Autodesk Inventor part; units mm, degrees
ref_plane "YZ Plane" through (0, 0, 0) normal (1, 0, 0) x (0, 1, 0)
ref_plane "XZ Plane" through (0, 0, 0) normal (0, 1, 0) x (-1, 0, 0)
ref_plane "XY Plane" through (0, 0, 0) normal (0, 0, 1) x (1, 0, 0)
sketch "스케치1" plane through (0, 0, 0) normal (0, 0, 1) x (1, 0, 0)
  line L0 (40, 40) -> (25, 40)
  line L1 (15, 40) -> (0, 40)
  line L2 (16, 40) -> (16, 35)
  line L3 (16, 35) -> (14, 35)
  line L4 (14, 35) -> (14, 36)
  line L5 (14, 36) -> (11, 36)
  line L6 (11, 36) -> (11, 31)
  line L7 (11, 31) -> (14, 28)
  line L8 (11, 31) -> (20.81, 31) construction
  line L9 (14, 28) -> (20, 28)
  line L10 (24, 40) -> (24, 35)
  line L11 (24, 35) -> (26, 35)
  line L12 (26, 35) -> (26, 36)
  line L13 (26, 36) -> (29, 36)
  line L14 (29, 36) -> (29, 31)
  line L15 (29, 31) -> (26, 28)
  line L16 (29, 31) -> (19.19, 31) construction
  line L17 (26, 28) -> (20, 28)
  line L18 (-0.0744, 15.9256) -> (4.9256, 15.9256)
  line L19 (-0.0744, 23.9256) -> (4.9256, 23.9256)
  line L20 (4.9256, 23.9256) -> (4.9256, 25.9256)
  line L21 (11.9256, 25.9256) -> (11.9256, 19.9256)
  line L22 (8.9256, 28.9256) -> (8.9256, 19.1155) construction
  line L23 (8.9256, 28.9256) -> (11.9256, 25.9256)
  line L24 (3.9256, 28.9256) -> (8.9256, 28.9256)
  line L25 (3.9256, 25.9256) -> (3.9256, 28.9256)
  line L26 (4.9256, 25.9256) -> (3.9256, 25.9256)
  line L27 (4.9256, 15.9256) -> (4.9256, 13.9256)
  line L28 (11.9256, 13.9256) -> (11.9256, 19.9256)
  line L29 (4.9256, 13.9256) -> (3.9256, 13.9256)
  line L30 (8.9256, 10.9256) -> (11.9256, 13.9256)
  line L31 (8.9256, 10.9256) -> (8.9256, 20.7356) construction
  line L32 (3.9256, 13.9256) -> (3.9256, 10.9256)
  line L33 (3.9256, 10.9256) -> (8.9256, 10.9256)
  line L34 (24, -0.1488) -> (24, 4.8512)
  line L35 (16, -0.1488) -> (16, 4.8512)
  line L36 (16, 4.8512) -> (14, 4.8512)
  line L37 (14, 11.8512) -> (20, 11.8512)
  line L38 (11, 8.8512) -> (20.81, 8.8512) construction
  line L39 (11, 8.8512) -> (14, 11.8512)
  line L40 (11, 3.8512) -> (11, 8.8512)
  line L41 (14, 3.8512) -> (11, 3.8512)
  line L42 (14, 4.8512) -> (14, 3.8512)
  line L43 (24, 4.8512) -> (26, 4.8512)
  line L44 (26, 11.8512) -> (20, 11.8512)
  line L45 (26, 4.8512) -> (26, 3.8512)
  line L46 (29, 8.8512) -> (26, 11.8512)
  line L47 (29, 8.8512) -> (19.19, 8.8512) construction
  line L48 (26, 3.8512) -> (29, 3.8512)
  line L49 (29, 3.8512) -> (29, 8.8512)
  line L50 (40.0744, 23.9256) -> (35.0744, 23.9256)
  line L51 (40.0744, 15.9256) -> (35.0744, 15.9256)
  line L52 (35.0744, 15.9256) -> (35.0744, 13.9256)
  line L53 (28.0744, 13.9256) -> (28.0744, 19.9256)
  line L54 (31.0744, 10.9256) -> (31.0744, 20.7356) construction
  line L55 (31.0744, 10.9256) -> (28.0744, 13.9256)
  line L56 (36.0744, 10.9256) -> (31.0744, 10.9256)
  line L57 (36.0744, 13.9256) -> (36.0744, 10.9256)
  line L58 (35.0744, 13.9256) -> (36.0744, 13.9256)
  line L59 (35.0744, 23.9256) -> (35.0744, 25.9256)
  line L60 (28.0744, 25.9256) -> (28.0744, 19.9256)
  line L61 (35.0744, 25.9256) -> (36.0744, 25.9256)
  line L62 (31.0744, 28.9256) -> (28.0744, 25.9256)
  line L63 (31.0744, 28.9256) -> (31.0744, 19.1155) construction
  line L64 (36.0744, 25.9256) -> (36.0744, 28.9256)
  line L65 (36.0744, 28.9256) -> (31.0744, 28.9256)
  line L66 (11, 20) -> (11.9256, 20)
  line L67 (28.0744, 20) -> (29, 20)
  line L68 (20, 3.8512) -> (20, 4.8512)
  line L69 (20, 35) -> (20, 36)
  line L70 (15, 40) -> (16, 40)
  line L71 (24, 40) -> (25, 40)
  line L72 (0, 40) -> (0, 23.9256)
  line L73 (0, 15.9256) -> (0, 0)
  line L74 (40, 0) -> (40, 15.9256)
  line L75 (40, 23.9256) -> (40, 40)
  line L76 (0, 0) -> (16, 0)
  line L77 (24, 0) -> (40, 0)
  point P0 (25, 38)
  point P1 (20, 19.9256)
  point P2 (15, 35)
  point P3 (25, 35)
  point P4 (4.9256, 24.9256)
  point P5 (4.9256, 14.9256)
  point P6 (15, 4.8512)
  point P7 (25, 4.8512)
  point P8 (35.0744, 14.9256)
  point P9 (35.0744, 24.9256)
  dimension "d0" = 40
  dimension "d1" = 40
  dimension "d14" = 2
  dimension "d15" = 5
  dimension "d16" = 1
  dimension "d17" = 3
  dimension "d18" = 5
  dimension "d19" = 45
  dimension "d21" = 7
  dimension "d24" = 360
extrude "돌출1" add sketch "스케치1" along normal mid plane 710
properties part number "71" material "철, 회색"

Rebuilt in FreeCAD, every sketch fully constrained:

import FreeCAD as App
import Part
import Sketcher
Q = App.Units.Quantity

doc = App.newDocument("Part")
body = doc.addObject("PartDesign::Body", "Body")

sketch1 = body.newObject("Sketcher::SketchObject", "Sketch")
sketch1.AttachmentSupport = (doc.getObject("XY_Plane"), [""])
sketch1.MapMode = "FlatFace"
sketch1.addGeometry(Part.LineSegment(App.Vector(40, 23.9, 0), App.Vector(40, 40, 0)), False)
sketch1.addGeometry(Part.LineSegment(App.Vector(40, 40, 0), App.Vector(24, 40, 0)), False)
sketch1.addGeometry(Part.LineSegment(App.Vector(24, 40, 0), App.Vector(24, 35, 0)), False)
sketch1.addGeometry(Part.LineSegment(App.Vector(24, 35, 0), App.Vector(26, 35, 0)), False)
sketch1.addGeometry(Part.LineSegment(App.Vector(26, 35, 0), App.Vector(26, 36, 0)), False)
sketch1.addGeometry(Part.LineSegment(App.Vector(26, 36, 0), App.Vector(29, 36, 0)), False)
sketch1.addGeometry(Part.LineSegment(App.Vector(29, 36, 0), App.Vector(29, 31, 0)), False)
sketch1.addGeometry(Part.LineSegment(App.Vector(29, 31, 0), App.Vector(26, 28, 0)), False)
sketch1.addGeometry(Part.LineSegment(App.Vector(26, 28, 0), App.Vector(14, 28, 0)), False)
sketch1.addGeometry(Part.LineSegment(App.Vector(14, 28, 0), App.Vector(11, 31, 0)), False)
sketch1.addGeometry(Part.LineSegment(App.Vector(11, 31, 0), App.Vector(11, 36, 0)), False)
sketch1.addGeometry(Part.LineSegment(App.Vector(11, 36, 0), App.Vector(14, 36, 0)), False)
sketch1.addGeometry(Part.LineSegment(App.Vector(14, 36, 0), App.Vector(14, 35, 0)), False)
sketch1.addGeometry(Part.LineSegment(App.Vector(14, 35, 0), App.Vector(16, 35, 0)), False)
sketch1.addGeometry(Part.LineSegment(App.Vector(16, 35, 0), App.Vector(16, 40, 0)), False)
sketch1.addGeometry(Part.LineSegment(App.Vector(16, 40, 0), App.Vector(0, 40, 0)), False)
sketch1.addGeometry(Part.LineSegment(App.Vector(0, 40, 0), App.Vector(0, 23.9, 0)), False)
sketch1.addGeometry(Part.LineSegment(App.Vector(0, 23.9, 0), App.Vector(4.9, 23.9, 0)), False)
sketch1.addGeometry(Part.LineSegment(App.Vector(4.9, 23.9, 0), App.Vector(4.9, 25.9, 0)), False)
sketch1.addGeometry(Part.LineSegment(App.Vector(4.9, 25.9, 0), App.Vector(3.9, 25.9, 0)), False)
sketch1.addGeometry(Part.LineSegment(App.Vector(3.9, 25.9, 0), App.Vector(3.9, 28.9, 0)), False)
sketch1.addGeometry(Part.LineSegment(App.Vector(3.9, 28.9, 0), App.Vector(8.9, 28.9, 0)), False)
sketch1.addGeometry(Part.LineSegment(App.Vector(8.9, 28.9, 0), App.Vector(11.9, 25.9, 0)), False)
sketch1.addGeometry(Part.LineSegment(App.Vector(11.9, 25.9, 0), App.Vector(11.9, 13.9, 0)), False)
sketch1.addGeometry(Part.LineSegment(App.Vector(11.9, 13.9, 0), App.Vector(8.9, 10.9, 0)), False)
sketch1.addGeometry(Part.LineSegment(App.Vector(8.9, 10.9, 0), App.Vector(3.9, 10.9, 0)), False)
sketch1.addGeometry(Part.LineSegment(App.Vector(3.9, 10.9, 0), App.Vector(3.9, 13.9, 0)), False)
sketch1.addGeometry(Part.LineSegment(App.Vector(3.9, 13.9, 0), App.Vector(4.9, 13.9, 0)), False)
sketch1.addGeometry(Part.LineSegment(App.Vector(4.9, 13.9, 0), App.Vector(4.9, 15.9, 0)), False)
sketch1.addGeometry(Part.LineSegment(App.Vector(4.9, 15.9, 0), App.Vector(0, 15.9, 0)), False)
sketch1.addGeometry(Part.LineSegment(App.Vector(0, 15.9, 0), App.Vector(0, 0, 0)), False)
sketch1.addGeometry(Part.LineSegment(App.Vector(0, 0, 0), App.Vector(16, 0, 0)), False)
sketch1.addGeometry(Part.LineSegment(App.Vector(16, 0, 0), App.Vector(16, 4.9, 0)), False)
sketch1.addGeometry(Part.LineSegment(App.Vector(16, 4.9, 0), App.Vector(14, 4.9, 0)), False)
sketch1.addGeometry(Part.LineSegment(App.Vector(14, 4.9, 0), App.Vector(14, 3.9, 0)), False)
sketch1.addGeometry(Part.LineSegment(App.Vector(14, 3.9, 0), App.Vector(11, 3.9, 0)), False)
sketch1.addGeometry(Part.LineSegment(App.Vector(11, 3.9, 0), App.Vector(11, 8.9, 0)), False)
sketch1.addGeometry(Part.LineSegment(App.Vector(11, 8.9, 0), App.Vector(14, 11.9, 0)), False)
sketch1.addGeometry(Part.LineSegment(App.Vector(14, 11.9, 0), App.Vector(26, 11.9, 0)), False)
sketch1.addGeometry(Part.LineSegment(App.Vector(26, 11.9, 0), App.Vector(29, 8.9, 0)), False)
sketch1.addGeometry(Part.LineSegment(App.Vector(29, 8.9, 0), App.Vector(29, 3.9, 0)), False)
sketch1.addGeometry(Part.LineSegment(App.Vector(29, 3.9, 0), App.Vector(26, 3.9, 0)), False)
sketch1.addGeometry(Part.LineSegment(App.Vector(26, 3.9, 0), App.Vector(26, 4.9, 0)), False)
sketch1.addGeometry(Part.LineSegment(App.Vector(26, 4.9, 0), App.Vector(24, 4.9, 0)), False)
sketch1.addGeometry(Part.LineSegment(App.Vector(24, 4.9, 0), App.Vector(24, 0, 0)), False)
sketch1.addGeometry(Part.LineSegment(App.Vector(24, 0, 0), App.Vector(40, 0, 0)), False)
sketch1.addGeometry(Part.LineSegment(App.Vector(40, 0, 0), App.Vector(40, 15.9, 0)), False)
sketch1.addGeometry(Part.LineSegment(App.Vector(40, 15.9, 0), App.Vector(35.1, 15.9, 0)), False)
sketch1.addGeometry(Part.LineSegment(App.Vector(35.1, 15.9, 0), App.Vector(35.1, 13.9, 0)), False)
sketch1.addGeometry(Part.LineSegment(App.Vector(35.1, 13.9, 0), App.Vector(36.1, 13.9, 0)), False)
sketch1.addGeometry(Part.LineSegment(App.Vector(36.1, 13.9, 0), App.Vector(36.1, 10.9, 0)), False)
sketch1.addGeometry(Part.LineSegment(App.Vector(36.1, 10.9, 0), App.Vector(31.1, 10.9, 0)), False)
sketch1.addGeometry(Part.LineSegment(App.Vector(31.1, 10.9, 0), App.Vector(28.1, 13.9, 0)), False)
sketch1.addGeometry(Part.LineSegment(App.Vector(28.1, 13.9, 0), App.Vector(28.1, 25.9, 0)), False)
sketch1.addGeometry(Part.LineSegment(App.Vector(28.1, 25.9, 0), App.Vector(31.1, 28.9, 0)), False)
sketch1.addGeometry(Part.LineSegment(App.Vector(31.1, 28.9, 0), App.Vector(36.1, 28.9, 0)), False)
sketch1.addGeometry(Part.LineSegment(App.Vector(36.1, 28.9, 0), App.Vector(36.1, 25.9, 0)), False)
sketch1.addGeometry(Part.LineSegment(App.Vector(36.1, 25.9, 0), App.Vector(35.1, 25.9, 0)), False)
sketch1.addGeometry(Part.LineSegment(App.Vector(35.1, 25.9, 0), App.Vector(35.1, 23.9, 0)), False)
sketch1.addGeometry(Part.LineSegment(App.Vector(35.1, 23.9, 0), App.Vector(40, 23.9, 0)), False)
sketch1.addConstraint(Sketcher.Constraint("Coincident", 0, 2, 1, 1))
sketch1.addConstraint(Sketcher.Constraint("Coincident", 1, 2, 2, 1))
sketch1.addConstraint(Sketcher.Constraint("Coincident", 2, 2, 3, 1))
sketch1.addConstraint(Sketcher.Constraint("Coincident", 3, 2, 4, 1))
sketch1.addConstraint(Sketcher.Constraint("Coincident", 4, 2, 5, 1))
sketch1.addConstraint(Sketcher.Constraint("Coincident", 5, 2, 6, 1))
sketch1.addConstraint(Sketcher.Constraint("Coincident", 6, 2, 7, 1))
sketch1.addConstraint(Sketcher.Constraint("Coincident", 7, 2, 8, 1))
sketch1.addConstraint(Sketcher.Constraint("Coincident", 8, 2, 9, 1))
sketch1.addConstraint(Sketcher.Constraint("Coincident", 9, 2, 10, 1))
sketch1.addConstraint(Sketcher.Constraint("Coincident", 10, 2, 11, 1))
sketch1.addConstraint(Sketcher.Constraint("Coincident", 11, 2, 12, 1))
sketch1.addConstraint(Sketcher.Constraint("Coincident", 12, 2, 13, 1))
sketch1.addConstraint(Sketcher.Constraint("Coincident", 13, 2, 14, 1))
sketch1.addConstraint(Sketcher.Constraint("Coincident", 14, 2, 15, 1))
sketch1.addConstraint(Sketcher.Constraint("Coincident", 15, 2, 16, 1))
sketch1.addConstraint(Sketcher.Constraint("Coincident", 16, 2, 17, 1))
sketch1.addConstraint(Sketcher.Constraint("Coincident", 17, 2, 18, 1))
sketch1.addConstraint(Sketcher.Constraint("Coincident", 18, 2, 19, 1))
sketch1.addConstraint(Sketcher.Constraint("Coincident", 19, 2, 20, 1))
sketch1.addConstraint(Sketcher.Constraint("Coincident", 20, 2, 21, 1))
sketch1.addConstraint(Sketcher.Constraint("Coincident", 21, 2, 22, 1))
sketch1.addConstraint(Sketcher.Constraint("Coincident", 22, 2, 23, 1))
sketch1.addConstraint(Sketcher.Constraint("Coincident", 23, 2, 24, 1))
sketch1.addConstraint(Sketcher.Constraint("Coincident", 24, 2, 25, 1))
sketch1.addConstraint(Sketcher.Constraint("Coincident", 25, 2, 26, 1))
sketch1.addConstraint(Sketcher.Constraint("Coincident", 26, 2, 27, 1))
sketch1.addConstraint(Sketcher.Constraint("Coincident", 27, 2, 28, 1))
sketch1.addConstraint(Sketcher.Constraint("Coincident", 28, 2, 29, 1))
sketch1.addConstraint(Sketcher.Constraint("Coincident", 29, 2, 30, 1))
sketch1.addConstraint(Sketcher.Constraint("Coincident", 30, 2, 31, 1))
sketch1.addConstraint(Sketcher.Constraint("Coincident", 31, 2, 32, 1))
sketch1.addConstraint(Sketcher.Constraint("Coincident", 32, 2, 33, 1))
sketch1.addConstraint(Sketcher.Constraint("Coincident", 33, 2, 34, 1))
sketch1.addConstraint(Sketcher.Constraint("Coincident", 34, 2, 35, 1))
sketch1.addConstraint(Sketcher.Constraint("Coincident", 35, 2, 36, 1))
sketch1.addConstraint(Sketcher.Constraint("Coincident", 36, 2, 37, 1))
sketch1.addConstraint(Sketcher.Constraint("Coincident", 37, 2, 38, 1))
sketch1.addConstraint(Sketcher.Constraint("Coincident", 38, 2, 39, 1))
sketch1.addConstraint(Sketcher.Constraint("Coincident", 39, 2, 40, 1))
sketch1.addConstraint(Sketcher.Constraint("Coincident", 40, 2, 41, 1))
sketch1.addConstraint(Sketcher.Constraint("Coincident", 41, 2, 42, 1))
sketch1.addConstraint(Sketcher.Constraint("Coincident", 42, 2, 43, 1))
sketch1.addConstraint(Sketcher.Constraint("Coincident", 43, 2, 44, 1))
sketch1.addConstraint(Sketcher.Constraint("Coincident", 44, 2, 45, 1))
sketch1.addConstraint(Sketcher.Constraint("Coincident", 45, 2, 46, 1))
sketch1.addConstraint(Sketcher.Constraint("Coincident", 46, 2, 47, 1))
sketch1.addConstraint(Sketcher.Constraint("Coincident", 47, 2, 48, 1))
sketch1.addConstraint(Sketcher.Constraint("Coincident", 48, 2, 49, 1))
sketch1.addConstraint(Sketcher.Constraint("Coincident", 49, 2, 50, 1))
sketch1.addConstraint(Sketcher.Constraint("Coincident", 50, 2, 51, 1))
sketch1.addConstraint(Sketcher.Constraint("Coincident", 51, 2, 52, 1))
sketch1.addConstraint(Sketcher.Constraint("Coincident", 52, 2, 53, 1))
sketch1.addConstraint(Sketcher.Constraint("Coincident", 53, 2, 54, 1))
sketch1.addConstraint(Sketcher.Constraint("Coincident", 54, 2, 55, 1))
sketch1.addConstraint(Sketcher.Constraint("Coincident", 55, 2, 56, 1))
sketch1.addConstraint(Sketcher.Constraint("Coincident", 56, 2, 57, 1))
sketch1.addConstraint(Sketcher.Constraint("Coincident", 57, 2, 58, 1))
sketch1.addConstraint(Sketcher.Constraint("Coincident", 58, 2, 59, 1))
sketch1.addConstraint(Sketcher.Constraint("Coincident", 59, 2, 0, 1))
sketch1.addConstraint(Sketcher.Constraint("Vertical", 0))
sketch1.addConstraint(Sketcher.Constraint("Horizontal", 1))
sketch1.addConstraint(Sketcher.Constraint("Vertical", 2))
sketch1.addConstraint(Sketcher.Constraint("Horizontal", 3))
sketch1.addConstraint(Sketcher.Constraint("Vertical", 4))
sketch1.addConstraint(Sketcher.Constraint("Horizontal", 5))
sketch1.addConstraint(Sketcher.Constraint("Vertical", 6))
sketch1.addConstraint(Sketcher.Constraint("Horizontal", 8))
sketch1.addConstraint(Sketcher.Constraint("Vertical", 10))
sketch1.addConstraint(Sketcher.Constraint("Horizontal", 11))
sketch1.addConstraint(Sketcher.Constraint("Vertical", 12))
sketch1.addConstraint(Sketcher.Constraint("Horizontal", 13))
sketch1.addConstraint(Sketcher.Constraint("Vertical", 14))
sketch1.addConstraint(Sketcher.Constraint("Horizontal", 15))
sketch1.addConstraint(Sketcher.Constraint("Vertical", 16))
sketch1.addConstraint(Sketcher.Constraint("Horizontal", 17))
sketch1.addConstraint(Sketcher.Constraint("Vertical", 18))
sketch1.addConstraint(Sketcher.Constraint("Horizontal", 19))
sketch1.addConstraint(Sketcher.Constraint("Vertical", 20))
sketch1.addConstraint(Sketcher.Constraint("Horizontal", 21))
sketch1.addConstraint(Sketcher.Constraint("Vertical", 23))
sketch1.addConstraint(Sketcher.Constraint("Horizontal", 25))
sketch1.addConstraint(Sketcher.Constraint("Vertical", 26))
sketch1.addConstraint(Sketcher.Constraint("Horizontal", 27))
sketch1.addConstraint(Sketcher.Constraint("Vertical", 28))
sketch1.addConstraint(Sketcher.Constraint("Horizontal", 29))
sketch1.addConstraint(Sketcher.Constraint("Vertical", 30))
sketch1.addConstraint(Sketcher.Constraint("Horizontal", 31))
sketch1.addConstraint(Sketcher.Constraint("Vertical", 32))
sketch1.addConstraint(Sketcher.Constraint("Horizontal", 33))
sketch1.addConstraint(Sketcher.Constraint("Vertical", 34))
sketch1.addConstraint(Sketcher.Constraint("Horizontal", 35))
sketch1.addConstraint(Sketcher.Constraint("Vertical", 36))
sketch1.addConstraint(Sketcher.Constraint("Horizontal", 38))
sketch1.addConstraint(Sketcher.Constraint("Vertical", 40))
sketch1.addConstraint(Sketcher.Constraint("Horizontal", 41))
sketch1.addConstraint(Sketcher.Constraint("Vertical", 42))
sketch1.addConstraint(Sketcher.Constraint("Horizontal", 43))
sketch1.addConstraint(Sketcher.Constraint("Vertical", 44))
sketch1.addConstraint(Sketcher.Constraint("Horizontal", 45))
sketch1.addConstraint(Sketcher.Constraint("Vertical", 46))
sketch1.addConstraint(Sketcher.Constraint("Horizontal", 47))
sketch1.addConstraint(Sketcher.Constraint("Vertical", 48))
sketch1.addConstraint(Sketcher.Constraint("Horizontal", 49))
sketch1.addConstraint(Sketcher.Constraint("Vertical", 50))
sketch1.addConstraint(Sketcher.Constraint("Horizontal", 51))
sketch1.addConstraint(Sketcher.Constraint("Vertical", 53))
sketch1.addConstraint(Sketcher.Constraint("Horizontal", 55))
sketch1.addConstraint(Sketcher.Constraint("Vertical", 56))
sketch1.addConstraint(Sketcher.Constraint("Horizontal", 57))
sketch1.addConstraint(Sketcher.Constraint("Vertical", 58))
sketch1.addConstraint(Sketcher.Constraint("Horizontal", 59))
sketch1.addConstraint(Sketcher.Constraint("Coincident", 30, 2, -1, 1))
sketch1.addConstraint(Sketcher.Constraint("PointOnObject", 15, 2, -2))
sketch1.addConstraint(Sketcher.Constraint("PointOnObject", 44, 2, -1))
sketch1.addConstraint(Sketcher.Constraint("Perpendicular", 7, 9))
sketch1.addConstraint(Sketcher.Constraint("Parallel", 9, 22))
sketch1.addConstraint(Sketcher.Constraint("Perpendicular", 22, 24))
sketch1.addConstraint(Sketcher.Constraint("Parallel", 24, 37))
sketch1.addConstraint(Sketcher.Constraint("Perpendicular", 37, 39))
sketch1.addConstraint(Sketcher.Constraint("Parallel", 39, 52))
sketch1.addConstraint(Sketcher.Constraint("Perpendicular", 52, 54))
sketch1.addConstraint(Sketcher.Constraint("Horizontal", 6, 2, 9, 2))
sketch1.addConstraint(Sketcher.Constraint("Horizontal", 5, 2, 10, 2))
sketch1.addConstraint(Sketcher.Constraint("Horizontal", 3, 2, 12, 2))
sketch1.addConstraint(Sketcher.Constraint("Horizontal", 1, 2, 14, 2))
sketch1.addConstraint(Sketcher.Constraint("Horizontal", 19, 2, 22, 2))
sketch1.addConstraint(Sketcher.Constraint("Horizontal", 23, 2, 26, 2))
sketch1.addConstraint(Sketcher.Constraint("Horizontal", 36, 2, 39, 2))
sketch1.addConstraint(Sketcher.Constraint("Horizontal", 35, 2, 40, 2))
sketch1.addConstraint(Sketcher.Constraint("Horizontal", 33, 2, 42, 2))
sketch1.addConstraint(Sketcher.Constraint("Horizontal", 29, 2, 46, 2))
sketch1.addConstraint(Sketcher.Constraint("Horizontal", 27, 2, 48, 2))
sketch1.addConstraint(Sketcher.Constraint("Horizontal", 25, 2, 50, 2))
sketch1.addConstraint(Sketcher.Constraint("Horizontal", 49, 2, 52, 2))
sketch1.addConstraint(Sketcher.Constraint("Horizontal", 22, 2, 53, 2))
sketch1.addConstraint(Sketcher.Constraint("Horizontal", 21, 2, 54, 2))
sketch1.addConstraint(Sketcher.Constraint("Horizontal", 53, 2, 56, 2))
sketch1.addConstraint(Sketcher.Constraint("Horizontal", 17, 2, 58, 2))
sketch1.addConstraint(Sketcher.Constraint("Vertical", 4, 2, 7, 2))
sketch1.addConstraint(Sketcher.Constraint("Vertical", 8, 2, 11, 2))
sketch1.addConstraint(Sketcher.Constraint("Vertical", 21, 2, 24, 2))
sketch1.addConstraint(Sketcher.Constraint("Vertical", 20, 2, 25, 2))
sketch1.addConstraint(Sketcher.Constraint("Vertical", 18, 2, 27, 2))
sketch1.addConstraint(Sketcher.Constraint("Vertical", 14, 2, 31, 2))
sketch1.addConstraint(Sketcher.Constraint("Vertical", 12, 2, 33, 2))
sketch1.addConstraint(Sketcher.Constraint("Vertical", 10, 2, 35, 2))
sketch1.addConstraint(Sketcher.Constraint("Vertical", 34, 2, 37, 2))
sketch1.addConstraint(Sketcher.Constraint("Vertical", 7, 2, 38, 2))
sketch1.addConstraint(Sketcher.Constraint("Vertical", 6, 2, 39, 2))
sketch1.addConstraint(Sketcher.Constraint("Vertical", 38, 2, 41, 2))
sketch1.addConstraint(Sketcher.Constraint("Vertical", 2, 2, 43, 2))
sketch1.addConstraint(Sketcher.Constraint("Vertical", 0, 2, 45, 2))
sketch1.addConstraint(Sketcher.Constraint("Vertical", 50, 2, 55, 2))
sketch1.addConstraint(Sketcher.Constraint("Vertical", 48, 2, 57, 2))
sketch1.addConstraint(Sketcher.Constraint("Equal", 3, 13))
sketch1.addConstraint(Sketcher.Constraint("Equal", 1, 15))
sketch1.addConstraint(Sketcher.Constraint("Equal", 29, 47))
sketch1.addConstraint(Sketcher.Constraint("Equal", 27, 49))
sketch1.addConstraint(Sketcher.Constraint("Equal", 25, 51))
sketch1.addConstraint(Sketcher.Constraint("Equal", 55, 2))
sketch1.addConstraint(Sketcher.Constraint("Equal", 57, 4))
sketch1.addConstraint(Sketcher.Constraint("Equal", 2, 6))
sketch1.addConstraint(Sketcher.Constraint("Equal", 43, 18))
sketch1.addConstraint(Sketcher.Constraint("Equal", 41, 20))
sketch1.addConstraint(Sketcher.Constraint("Equal", 38, 23))
sketch1.addConstraint(Sketcher.Constraint("Equal", 18, 28))
sketch1.addConstraint(Sketcher.Constraint("Equal", 12, 34))
sketch1.addConstraint(Sketcher.Constraint("Equal", 14, 36))
sketch1.addConstraint(Sketcher.Constraint("DistanceX", 3, 1, 3, 2, Q("2 mm")))
sketch1.addConstraint(Sketcher.Constraint("DistanceX", 5, 1, 5, 2, Q("3 mm")))
sketch1.addConstraint(Sketcher.Constraint("DistanceX", 19, 2, 19, 1, Q("1 mm")))
sketch1.addConstraint(Sketcher.Constraint("DistanceX", 21, 1, 21, 2, Q("5 mm")))
sketch1.addConstraint(Sketcher.Constraint("DistanceX", -1, 1, 0, 2, Q("40 mm")))
sketch1.addConstraint(Sketcher.Constraint("DistanceY", -1, 1, 0, 2, Q("40 mm")))
sketch1.addConstraint(Sketcher.Constraint("DistanceX", 1, 2, 1, 1, Q("16 mm")))
sketch1.addConstraint(Sketcher.Constraint("DistanceX", 17, 1, 17, 2, Q("4.9256 mm")))
sketch1.addConstraint(Sketcher.Constraint("DistanceY", 0, 1, 0, 2, Q("16.0744 mm")))
sketch1.addConstraint(Sketcher.Constraint("DistanceY", 32, 1, 32, 2, Q("4.8512 mm")))
pad1 = body.newObject("PartDesign::Pad", "Pad")
pad1.Profile = sketch1
pad1.Length = 710
pad1.Midplane = True

doc.recompute()
